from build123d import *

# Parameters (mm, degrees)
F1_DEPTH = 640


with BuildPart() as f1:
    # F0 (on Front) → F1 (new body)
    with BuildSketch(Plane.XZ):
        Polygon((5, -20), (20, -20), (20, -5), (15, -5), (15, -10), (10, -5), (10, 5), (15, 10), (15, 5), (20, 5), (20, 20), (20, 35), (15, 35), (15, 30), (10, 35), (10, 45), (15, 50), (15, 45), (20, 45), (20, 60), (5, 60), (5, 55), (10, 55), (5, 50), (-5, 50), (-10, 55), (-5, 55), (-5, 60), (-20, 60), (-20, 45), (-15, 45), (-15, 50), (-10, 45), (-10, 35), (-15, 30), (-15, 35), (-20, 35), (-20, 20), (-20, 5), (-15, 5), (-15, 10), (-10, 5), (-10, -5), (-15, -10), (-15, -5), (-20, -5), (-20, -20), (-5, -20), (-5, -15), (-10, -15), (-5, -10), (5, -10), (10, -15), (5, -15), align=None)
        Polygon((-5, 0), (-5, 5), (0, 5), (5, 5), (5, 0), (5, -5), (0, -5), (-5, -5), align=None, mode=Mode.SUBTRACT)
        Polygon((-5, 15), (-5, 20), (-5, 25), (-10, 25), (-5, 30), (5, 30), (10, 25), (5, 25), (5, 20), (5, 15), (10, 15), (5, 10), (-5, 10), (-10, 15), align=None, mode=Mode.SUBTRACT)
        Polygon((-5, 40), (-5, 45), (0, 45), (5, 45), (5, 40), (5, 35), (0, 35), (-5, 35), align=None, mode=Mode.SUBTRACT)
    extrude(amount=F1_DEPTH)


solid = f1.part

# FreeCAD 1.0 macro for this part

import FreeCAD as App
import Part
import Sketcher
from FreeCAD import Vector

doc = App.newDocument("Part")
body = doc.addObject("PartDesign::Body", "Body")

sketch1 = body.newObject("Sketcher::SketchObject", "Sketch")
sketch1.AttachmentSupport = (doc.getObject("XZ_Plane"), [""])
sketch1.MapMode = "FlatFace"
sketch1.addGeometry(Part.LineSegment(Vector(5, -20, 0), Vector(20, -20, 0)), False)
sketch1.addGeometry(Part.LineSegment(Vector(20, -20, 0), Vector(20, -5, 0)), False)
sketch1.addGeometry(Part.LineSegment(Vector(20, -5, 0), Vector(15, -5, 0)), False)
sketch1.addGeometry(Part.LineSegment(Vector(15, -5, 0), Vector(15, -10, 0)), False)
sketch1.addGeometry(Part.LineSegment(Vector(15, -10, 0), Vector(10, -5, 0)), False)
sketch1.addGeometry(Part.LineSegment(Vector(10, -5, 0), Vector(10, 5, 0)), False)
sketch1.addGeometry(Part.LineSegment(Vector(10, 5, 0), Vector(15, 10, 0)), False)
sketch1.addGeometry(Part.LineSegment(Vector(15, 10, 0), Vector(15, 5, 0)), False)
sketch1.addGeometry(Part.LineSegment(Vector(15, 5, 0), Vector(20, 5, 0)), False)
sketch1.addGeometry(Part.LineSegment(Vector(20, 5, 0), Vector(20, 35, 0)), False)
sketch1.addGeometry(Part.LineSegment(Vector(20, 35, 0), Vector(15, 35, 0)), False)
sketch1.addGeometry(Part.LineSegment(Vector(15, 35, 0), Vector(15, 30, 0)), False)
sketch1.addGeometry(Part.LineSegment(Vector(15, 30, 0), Vector(10, 35, 0)), False)
sketch1.addGeometry(Part.LineSegment(Vector(10, 35, 0), Vector(10, 45, 0)), False)
sketch1.addGeometry(Part.LineSegment(Vector(10, 45, 0), Vector(15, 50, 0)), False)
sketch1.addGeometry(Part.LineSegment(Vector(15, 50, 0), Vector(15, 45, 0)), False)
sketch1.addGeometry(Part.LineSegment(Vector(15, 45, 0), Vector(20, 45, 0)), False)
sketch1.addGeometry(Part.LineSegment(Vector(20, 45, 0), Vector(20, 60, 0)), False)
sketch1.addGeometry(Part.LineSegment(Vector(20, 60, 0), Vector(5, 60, 0)), False)
sketch1.addGeometry(Part.LineSegment(Vector(5, 60, 0), Vector(5, 55, 0)), False)
sketch1.addGeometry(Part.LineSegment(Vector(5, 55, 0), Vector(10, 55, 0)), False)
sketch1.addGeometry(Part.LineSegment(Vector(10, 55, 0), Vector(5, 50, 0)), False)
sketch1.addGeometry(Part.LineSegment(Vector(5, 50, 0), Vector(-5, 50, 0)), False)
sketch1.addGeometry(Part.LineSegment(Vector(-5, 50, 0), Vector(-10, 55, 0)), False)
sketch1.addGeometry(Part.LineSegment(Vector(-10, 55, 0), Vector(-5, 55, 0)), False)
sketch1.addGeometry(Part.LineSegment(Vector(-5, 55, 0), Vector(-5, 60, 0)), False)
sketch1.addGeometry(Part.LineSegment(Vector(-5, 60, 0), Vector(-20, 60, 0)), False)
sketch1.addGeometry(Part.LineSegment(Vector(-20, 60, 0), Vector(-20, 45, 0)), False)
sketch1.addGeometry(Part.LineSegment(Vector(-20, 45, 0), Vector(-15, 45, 0)), False)
sketch1.addGeometry(Part.LineSegment(Vector(-15, 45, 0), Vector(-15, 50, 0)), False)
sketch1.addGeometry(Part.LineSegment(Vector(-15, 50, 0), Vector(-10, 45, 0)), False)
sketch1.addGeometry(Part.LineSegment(Vector(-10, 45, 0), Vector(-10, 35, 0)), False)
sketch1.addGeometry(Part.LineSegment(Vector(-10, 35, 0), Vector(-15, 30, 0)), False)
sketch1.addGeometry(Part.LineSegment(Vector(-15, 30, 0), Vector(-15, 35, 0)), False)
sketch1.addGeometry(Part.LineSegment(Vector(-15, 35, 0), Vector(-20, 35, 0)), False)
sketch1.addGeometry(Part.LineSegment(Vector(-20, 35, 0), Vector(-20, 5, 0)), False)
sketch1.addGeometry(Part.LineSegment(Vector(-20, 5, 0), Vector(-15, 5, 0)), False)
sketch1.addGeometry(Part.LineSegment(Vector(-15, 5, 0), Vector(-15, 10, 0)), False)
sketch1.addGeometry(Part.LineSegment(Vector(-15, 10, 0), Vector(-10, 5, 0)), False)
sketch1.addGeometry(Part.LineSegment(Vector(-10, 5, 0), Vector(-10, -5, 0)), False)
sketch1.addGeometry(Part.LineSegment(Vector(-10, -5, 0), Vector(-15, -10, 0)), False)
sketch1.addGeometry(Part.LineSegment(Vector(-15, -10, 0), Vector(-15, -5, 0)), False)
sketch1.addGeometry(Part.LineSegment(Vector(-15, -5, 0), Vector(-20, -5, 0)), False)
sketch1.addGeometry(Part.LineSegment(Vector(-20, -5, 0), Vector(-20, -20, 0)), False)
sketch1.addGeometry(Part.LineSegment(Vector(-20, -20, 0), Vector(-5, -20, 0)), False)
sketch1.addGeometry(Part.LineSegment(Vector(-5, -20, 0), Vector(-5, -15, 0)), False)
sketch1.addGeometry(Part.LineSegment(Vector(-5, -15, 0), Vector(-10, -15, 0)), False)
sketch1.addGeometry(Part.LineSegment(Vector(-10, -15, 0), Vector(-5, -10, 0)), False)
sketch1.addGeometry(Part.LineSegment(Vector(-5, -10, 0), Vector(5, -10, 0)), False)
sketch1.addGeometry(Part.LineSegment(Vector(5, -10, 0), Vector(10, -15, 0)), False)
sketch1.addGeometry(Part.LineSegment(Vector(10, -15, 0), Vector(5, -15, 0)), False)
sketch1.addGeometry(Part.LineSegment(Vector(5, -15, 0), Vector(5, -20, 0)), False)
sketch1.addGeometry(Part.LineSegment(Vector(-5, -5, 0), Vector(-5, 5, 0)), False)
sketch1.addGeometry(Part.LineSegment(Vector(-5, 5, 0), Vector(5, 5, 0)), False)
sketch1.addGeometry(Part.LineSegment(Vector(5, 5, 0), Vector(5, -5, 0)), False)
sketch1.addGeometry(Part.LineSegment(Vector(5, -5, 0), Vector(-5, -5, 0)), False)
sketch1.addGeometry(Part.LineSegment(Vector(-10, 15, 0), Vector(-5, 15, 0)), False)
sketch1.addGeometry(Part.LineSegment(Vector(-5, 15, 0), Vector(-5, 25, 0)), False)
sketch1.addGeometry(Part.LineSegment(Vector(-5, 25, 0), Vector(-10, 25, 0)), False)
sketch1.addGeometry(Part.LineSegment(Vector(-10, 25, 0), Vector(-5, 30, 0)), False)
sketch1.addGeometry(Part.LineSegment(Vector(-5, 30, 0), Vector(5, 30, 0)), False)
sketch1.addGeometry(Part.LineSegment(Vector(5, 30, 0), Vector(10, 25, 0)), False)
sketch1.addGeometry(Part.LineSegment(Vector(10, 25, 0), Vector(5, 25, 0)), False)
sketch1.addGeometry(Part.LineSegment(Vector(5, 25, 0), Vector(5, 15, 0)), False)
sketch1.addGeometry(Part.LineSegment(Vector(5, 15, 0), Vector(10, 15, 0)), False)
sketch1.addGeometry(Part.LineSegment(Vector(10, 15, 0), Vector(5, 10, 0)), False)
sketch1.addGeometry(Part.LineSegment(Vector(5, 10, 0), Vector(-5, 10, 0)), False)
sketch1.addGeometry(Part.LineSegment(Vector(-5, 10, 0), Vector(-10, 15, 0)), False)
sketch1.addGeometry(Part.LineSegment(Vector(-5, 35, 0), Vector(-5, 45, 0)), False)
sketch1.addGeometry(Part.LineSegment(Vector(-5, 45, 0), Vector(5, 45, 0)), False)
sketch1.addGeometry(Part.LineSegment(Vector(5, 45, 0), Vector(5, 35, 0)), False)
sketch1.addGeometry(Part.LineSegment(Vector(5, 35, 0), Vector(-5, 35, 0)), False)
sketch1.addConstraint(Sketcher.Constraint("Coincident", 0, 2, 1, 1))
sketch1.addConstraint(Sketcher.Constraint("Coincident", 1, 2, 2, 1))
sketch1.addConstraint(Sketcher.Constraint("Coincident", 2, 2, 3, 1))
sketch1.addConstraint(Sketcher.Constraint("Coincident", 3, 2, 4, 1))
sketch1.addConstraint(Sketcher.Constraint("Coincident", 4, 2, 5, 1))
sketch1.addConstraint(Sketcher.Constraint("Coincident", 5, 2, 6, 1))
sketch1.addConstraint(Sketcher.Constraint("Coincident", 6, 2, 7, 1))
sketch1.addConstraint(Sketcher.Constraint("Coincident", 7, 2, 8, 1))
sketch1.addConstraint(Sketcher.Constraint("Coincident", 8, 2, 9, 1))
sketch1.addConstraint(Sketcher.Constraint("Coincident", 9, 2, 10, 1))
sketch1.addConstraint(Sketcher.Constraint("Coincident", 10, 2, 11, 1))
sketch1.addConstraint(Sketcher.Constraint("Coincident", 11, 2, 12, 1))
sketch1.addConstraint(Sketcher.Constraint("Coincident", 12, 2, 13, 1))
sketch1.addConstraint(Sketcher.Constraint("Coincident", 13, 2, 14, 1))
sketch1.addConstraint(Sketcher.Constraint("Coincident", 14, 2, 15, 1))
sketch1.addConstraint(Sketcher.Constraint("Coincident", 15, 2, 16, 1))
sketch1.addConstraint(Sketcher.Constraint("Coincident", 16, 2, 17, 1))
sketch1.addConstraint(Sketcher.Constraint("Coincident", 17, 2, 18, 1))
sketch1.addConstraint(Sketcher.Constraint("Coincident", 18, 2, 19, 1))
sketch1.addConstraint(Sketcher.Constraint("Coincident", 19, 2, 20, 1))
sketch1.addConstraint(Sketcher.Constraint("Coincident", 20, 2, 21, 1))
sketch1.addConstraint(Sketcher.Constraint("Coincident", 21, 2, 22, 1))
sketch1.addConstraint(Sketcher.Constraint("Coincident", 22, 2, 23, 1))
sketch1.addConstraint(Sketcher.Constraint("Coincident", 23, 2, 24, 1))
sketch1.addConstraint(Sketcher.Constraint("Coincident", 24, 2, 25, 1))
sketch1.addConstraint(Sketcher.Constraint("Coincident", 25, 2, 26, 1))
sketch1.addConstraint(Sketcher.Constraint("Coincident", 26, 2, 27, 1))
sketch1.addConstraint(Sketcher.Constraint("Coincident", 27, 2, 28, 1))
sketch1.addConstraint(Sketcher.Constraint("Coincident", 28, 2, 29, 1))
sketch1.addConstraint(Sketcher.Constraint("Coincident", 29, 2, 30, 1))
sketch1.addConstraint(Sketcher.Constraint("Coincident", 30, 2, 31, 1))
sketch1.addConstraint(Sketcher.Constraint("Coincident", 31, 2, 32, 1))
sketch1.addConstraint(Sketcher.Constraint("Coincident", 32, 2, 33, 1))
sketch1.addConstraint(Sketcher.Constraint("Coincident", 33, 2, 34, 1))
sketch1.addConstraint(Sketcher.Constraint("Coincident", 34, 2, 35, 1))
sketch1.addConstraint(Sketcher.Constraint("Coincident", 35, 2, 36, 1))
sketch1.addConstraint(Sketcher.Constraint("Coincident", 36, 2, 37, 1))
sketch1.addConstraint(Sketcher.Constraint("Coincident", 37, 2, 38, 1))
sketch1.addConstraint(Sketcher.Constraint("Coincident", 38, 2, 39, 1))
sketch1.addConstraint(Sketcher.Constraint("Coincident", 39, 2, 40, 1))
sketch1.addConstraint(Sketcher.Constraint("Coincident", 40, 2, 41, 1))
sketch1.addConstraint(Sketcher.Constraint("Coincident", 41, 2, 42, 1))
sketch1.addConstraint(Sketcher.Constraint("Coincident", 42, 2, 43, 1))
sketch1.addConstraint(Sketcher.Constraint("Coincident", 43, 2, 44, 1))
sketch1.addConstraint(Sketcher.Constraint("Coincident", 44, 2, 45, 1))
sketch1.addConstraint(Sketcher.Constraint("Coincident", 45, 2, 46, 1))
sketch1.addConstraint(Sketcher.Constraint("Coincident", 46, 2, 47, 1))
sketch1.addConstraint(Sketcher.Constraint("Coincident", 47, 2, 48, 1))
sketch1.addConstraint(Sketcher.Constraint("Coincident", 48, 2, 49, 1))
sketch1.addConstraint(Sketcher.Constraint("Coincident", 49, 2, 50, 1))
sketch1.addConstraint(Sketcher.Constraint("Coincident", 50, 2, 51, 1))
sketch1.addConstraint(Sketcher.Constraint("Coincident", 51, 2, 0, 1))
sketch1.addConstraint(Sketcher.Constraint("Coincident", 52, 2, 53, 1))
sketch1.addConstraint(Sketcher.Constraint("Coincident", 53, 2, 54, 1))
sketch1.addConstraint(Sketcher.Constraint("Coincident", 54, 2, 55, 1))
sketch1.addConstraint(Sketcher.Constraint("Coincident", 55, 2, 52, 1))
sketch1.addConstraint(Sketcher.Constraint("Coincident", 56, 2, 57, 1))
sketch1.addConstraint(Sketcher.Constraint("Coincident", 57, 2, 58, 1))
sketch1.addConstraint(Sketcher.Constraint("Coincident", 58, 2, 59, 1))
sketch1.addConstraint(Sketcher.Constraint("Coincident", 59, 2, 60, 1))
sketch1.addConstraint(Sketcher.Constraint("Coincident", 60, 2, 61, 1))
sketch1.addConstraint(Sketcher.Constraint("Coincident", 61, 2, 62, 1))
sketch1.addConstraint(Sketcher.Constraint("Coincident", 62, 2, 63, 1))
sketch1.addConstraint(Sketcher.Constraint("Coincident", 63, 2, 64, 1))
sketch1.addConstraint(Sketcher.Constraint("Coincident", 64, 2, 65, 1))
sketch1.addConstraint(Sketcher.Constraint("Coincident", 65, 2, 66, 1))
sketch1.addConstraint(Sketcher.Constraint("Coincident", 66, 2, 67, 1))
sketch1.addConstraint(Sketcher.Constraint("Coincident", 67, 2, 56, 1))
sketch1.addConstraint(Sketcher.Constraint("Coincident", 68, 2, 69, 1))
sketch1.addConstraint(Sketcher.Constraint("Coincident", 69, 2, 70, 1))
sketch1.addConstraint(Sketcher.Constraint("Coincident", 70, 2, 71, 1))
sketch1.addConstraint(Sketcher.Constraint("Coincident", 71, 2, 68, 1))
sketch1.addConstraint(Sketcher.Constraint("Horizontal", 0))
sketch1.addConstraint(Sketcher.Constraint("Vertical", 1))
sketch1.addConstraint(Sketcher.Constraint("Horizontal", 2))
sketch1.addConstraint(Sketcher.Constraint("Vertical", 3))
sketch1.addConstraint(Sketcher.Constraint("Vertical", 5))
sketch1.addConstraint(Sketcher.Constraint("Vertical", 7))
sketch1.addConstraint(Sketcher.Constraint("Horizontal", 8))
sketch1.addConstraint(Sketcher.Constraint("Vertical", 9))
sketch1.addConstraint(Sketcher.Constraint("Horizontal", 10))
sketch1.addConstraint(Sketcher.Constraint("Vertical", 11))
sketch1.addConstraint(Sketcher.Constraint("Vertical", 13))
sketch1.addConstraint(Sketcher.Constraint("Vertical", 15))
sketch1.addConstraint(Sketcher.Constraint("Horizontal", 16))
sketch1.addConstraint(Sketcher.Constraint("Vertical", 17))
sketch1.addConstraint(Sketcher.Constraint("Horizontal", 18))
sketch1.addConstraint(Sketcher.Constraint("Vertical", 19))
sketch1.addConstraint(Sketcher.Constraint("Horizontal", 20))
sketch1.addConstraint(Sketcher.Constraint("Horizontal", 22))
sketch1.addConstraint(Sketcher.Constraint("Horizontal", 24))
sketch1.addConstraint(Sketcher.Constraint("Vertical", 25))
sketch1.addConstraint(Sketcher.Constraint("Horizontal", 26))
sketch1.addConstraint(Sketcher.Constraint("Vertical", 27))
sketch1.addConstraint(Sketcher.Constraint("Horizontal", 28))
sketch1.addConstraint(Sketcher.Constraint("Vertical", 29))
sketch1.addConstraint(Sketcher.Constraint("Vertical", 31))
sketch1.addConstraint(Sketcher.Constraint("Vertical", 33))
sketch1.addConstraint(Sketcher.Constraint("Horizontal", 34))
sketch1.addConstraint(Sketcher.Constraint("Vertical", 35))
sketch1.addConstraint(Sketcher.Constraint("Horizontal", 36))
sketch1.addConstraint(Sketcher.Constraint("Vertical", 37))
sketch1.addConstraint(Sketcher.Constraint("Vertical", 39))
sketch1.addConstraint(Sketcher.Constraint("Vertical", 41))
sketch1.addConstraint(Sketcher.Constraint("Horizontal", 42))
sketch1.addConstraint(Sketcher.Constraint("Vertical", 43))
sketch1.addConstraint(Sketcher.Constraint("Horizontal", 44))
sketch1.addConstraint(Sketcher.Constraint("Vertical", 45))
sketch1.addConstraint(Sketcher.Constraint("Horizontal", 46))
sketch1.addConstraint(Sketcher.Constraint("Horizontal", 48))
sketch1.addConstraint(Sketcher.Constraint("Horizontal", 50))
sketch1.addConstraint(Sketcher.Constraint("Vertical", 51))
sketch1.addConstraint(Sketcher.Constraint("Vertical", 52))
sketch1.addConstraint(Sketcher.Constraint("Horizontal", 53))
sketch1.addConstraint(Sketcher.Constraint("Vertical", 54))
sketch1.addConstraint(Sketcher.Constraint("Horizontal", 55))
sketch1.addConstraint(Sketcher.Constraint("Horizontal", 56))
sketch1.addConstraint(Sketcher.Constraint("Vertical", 57))
sketch1.addConstraint(Sketcher.Constraint("Horizontal", 58))
sketch1.addConstraint(Sketcher.Constraint("Horizontal", 60))
sketch1.addConstraint(Sketcher.Constraint("Horizontal", 62))
sketch1.addConstraint(Sketcher.Constraint("Vertical", 63))
sketch1.addConstraint(Sketcher.Constraint("Horizontal", 64))
sketch1.addConstraint(Sketcher.Constraint("Horizontal", 66))
sketch1.addConstraint(Sketcher.Constraint("Vertical", 68))
sketch1.addConstraint(Sketcher.Constraint("Horizontal", 69))
sketch1.addConstraint(Sketcher.Constraint("Vertical", 70))
sketch1.addConstraint(Sketcher.Constraint("Horizontal", 71))
sketch1.addConstraint(Sketcher.Constraint("Symmetric", 1, 2, 35, 2, -1, 1))
sketch1.addConstraint(Sketcher.Constraint("Symmetric", 3, 2, 37, 2, -1, 1))
sketch1.addConstraint(Sketcher.Constraint("Symmetric", 4, 2, 38, 2, -1, 1))
sketch1.addConstraint(Sketcher.Constraint("Symmetric", 6, 2, 40, 2, -1, 1))
sketch1.addConstraint(Sketcher.Constraint("Symmetric", 8, 2, 42, 2, -1, 1))
sketch1.addConstraint(Sketcher.Constraint("Symmetric", 52, 2, 54, 2, -1, 1))
sketch1.addConstraint(Sketcher.Constraint("Symmetric", 50, 2, 56, 2, -1, 1))
sketch1.addConstraint(Sketcher.Constraint("Symmetric", 45, 2, 63, 2, -1, 1))
sketch1.addConstraint(Sketcher.Constraint("Symmetric", 47, 2, 65, 2, -1, 1))
sketch1.addConstraint(Sketcher.Constraint("Symmetric", 20, 2, 23, 2, -2))
sketch1.addConstraint(Sketcher.Constraint("Symmetric", 18, 2, 25, 2, -2))
sketch1.addConstraint(Sketcher.Constraint("Symmetric", 16, 2, 27, 2, -2))
sketch1.addConstraint(Sketcher.Constraint("Symmetric", 14, 2, 29, 2, -2))
sketch1.addConstraint(Sketcher.Constraint("Symmetric", 13, 2, 30, 2, -2))
sketch1.addConstraint(Sketcher.Constraint("Symmetric", 11, 2, 32, 2, -2))
sketch1.addConstraint(Sketcher.Constraint("Symmetric", 9, 2, 34, 2, -2))
sketch1.addConstraint(Sketcher.Constraint("Symmetric", 7, 2, 36, 2, -2))
sketch1.addConstraint(Sketcher.Constraint("Symmetric", 46, 2, 49, 2, -2))
sketch1.addConstraint(Sketcher.Constraint("Symmetric", 44, 2, 51, 2, -2))
sketch1.addConstraint(Sketcher.Constraint("Symmetric", 58, 2, 61, 2, -2))
sketch1.addConstraint(Sketcher.Constraint("Perpendicular", 4, 6))
sketch1.addConstraint(Sketcher.Constraint("Perpendicular", 6, 12))
sketch1.addConstraint(Sketcher.Constraint("Perpendicular", 12, 14))
sketch1.addConstraint(Sketcher.Constraint("Parallel", 14, 21))
sketch1.addConstraint(Sketcher.Constraint("Perpendicular", 21, 23))
sketch1.addConstraint(Sketcher.Constraint("Parallel", 23, 30))
sketch1.addConstraint(Sketcher.Constraint("Perpendicular", 30, 32))
sketch1.addConstraint(Sketcher.Constraint("Perpendicular", 38, 40))
sketch1.addConstraint(Sketcher.Constraint("Parallel", 40, 47))
sketch1.addConstraint(Sketcher.Constraint("Perpendicular", 47, 49))
sketch1.addConstraint(Sketcher.Constraint("Perpendicular", 49, 59))
sketch1.addConstraint(Sketcher.Constraint("Perpendicular", 59, 61))
sketch1.addConstraint(Sketcher.Constraint("Perpendicular", 61, 65))
sketch1.addConstraint(Sketcher.Constraint("Perpendicular", 65, 67))
sketch1.addConstraint(Sketcher.Constraint("Horizontal", 2, 2, 4, 2))
sketch1.addConstraint(Sketcher.Constraint("Horizontal", 5, 2, 7, 2))
sketch1.addConstraint(Sketcher.Constraint("Horizontal", 10, 2, 12, 2))
sketch1.addConstraint(Sketcher.Constraint("Horizontal", 13, 2, 15, 2))
sketch1.addConstraint(Sketcher.Constraint("Horizontal", 14, 2, 21, 2))
sketch1.addConstraint(Sketcher.Constraint("Horizontal", 40, 2, 47, 2))
sketch1.addConstraint(Sketcher.Constraint("Horizontal", 38, 2, 52, 2))
sketch1.addConstraint(Sketcher.Constraint("Horizontal", 32, 2, 59, 2))
sketch1.addConstraint(Sketcher.Constraint("Horizontal", 30, 2, 68, 2))
sketch1.addConstraint(Sketcher.Constraint("Horizontal", 34, 2, 70, 2))
sketch1.addConstraint(Sketcher.Constraint("Vertical", 7, 2, 10, 2))
sketch1.addConstraint(Sketcher.Constraint("Vertical", 5, 2, 12, 2))
sketch1.addConstraint(Sketcher.Constraint("Vertical", 11, 2, 14, 2))
sketch1.addConstraint(Sketcher.Constraint("Vertical", 9, 2, 16, 2))
sketch1.addConstraint(Sketcher.Constraint("Vertical", 13, 2, 20, 2))
sketch1.addConstraint(Sketcher.Constraint("Vertical", 19, 2, 21, 2))
sketch1.addConstraint(Sketcher.Constraint("Vertical", 25, 2, 44, 2))
sketch1.addConstraint(Sketcher.Constraint("Vertical", 39, 2, 46, 2))
sketch1.addConstraint(Sketcher.Constraint("Vertical", 45, 2, 47, 2))
sketch1.addConstraint(Sketcher.Constraint("Vertical", 47, 2, 52, 2))
sketch1.addConstraint(Sketcher.Constraint("Vertical", 46, 2, 58, 2))
sketch1.addConstraint(Sketcher.Constraint("Vertical", 57, 2, 59, 2))
sketch1.addConstraint(Sketcher.Constraint("Vertical", 59, 2, 66, 2))
sketch1.addConstraint(Sketcher.Constraint("Vertical", 66, 2, 68, 2))
sketch1.addConstraint(Sketcher.Constraint("Vertical", 65, 2, 69, 2))
sketch1.addConstraint(Sketcher.Constraint("Equal", 16, 20))
sketch1.addConstraint(Sketcher.Constraint("Equal", 44, 1))
sketch1.addConstraint(Sketcher.Constraint("Equal", 64, 3))
sketch1.addConstraint(Sketcher.Constraint("Equal", 71, 5))
sketch1.addConstraint(Sketcher.Constraint("Equal", 5, 13))
sketch1.addConstraint(Sketcher.Constraint("Equal", 1, 17))
sketch1.addConstraint(Sketcher.Constraint("Equal", 54, 57))
sketch1.addConstraint(Sketcher.Constraint("DistanceX", 0, 1, 0, 2, 15.0))
sketch1.addConstraint(Sketcher.Constraint("DistanceX", 22, 2, 22, 1, 10.0))
pad1 = body.newObject("PartDesign::Pad", "Pad")
pad1.Profile = sketch1
pad1.Length = 640

doc.recompute()
